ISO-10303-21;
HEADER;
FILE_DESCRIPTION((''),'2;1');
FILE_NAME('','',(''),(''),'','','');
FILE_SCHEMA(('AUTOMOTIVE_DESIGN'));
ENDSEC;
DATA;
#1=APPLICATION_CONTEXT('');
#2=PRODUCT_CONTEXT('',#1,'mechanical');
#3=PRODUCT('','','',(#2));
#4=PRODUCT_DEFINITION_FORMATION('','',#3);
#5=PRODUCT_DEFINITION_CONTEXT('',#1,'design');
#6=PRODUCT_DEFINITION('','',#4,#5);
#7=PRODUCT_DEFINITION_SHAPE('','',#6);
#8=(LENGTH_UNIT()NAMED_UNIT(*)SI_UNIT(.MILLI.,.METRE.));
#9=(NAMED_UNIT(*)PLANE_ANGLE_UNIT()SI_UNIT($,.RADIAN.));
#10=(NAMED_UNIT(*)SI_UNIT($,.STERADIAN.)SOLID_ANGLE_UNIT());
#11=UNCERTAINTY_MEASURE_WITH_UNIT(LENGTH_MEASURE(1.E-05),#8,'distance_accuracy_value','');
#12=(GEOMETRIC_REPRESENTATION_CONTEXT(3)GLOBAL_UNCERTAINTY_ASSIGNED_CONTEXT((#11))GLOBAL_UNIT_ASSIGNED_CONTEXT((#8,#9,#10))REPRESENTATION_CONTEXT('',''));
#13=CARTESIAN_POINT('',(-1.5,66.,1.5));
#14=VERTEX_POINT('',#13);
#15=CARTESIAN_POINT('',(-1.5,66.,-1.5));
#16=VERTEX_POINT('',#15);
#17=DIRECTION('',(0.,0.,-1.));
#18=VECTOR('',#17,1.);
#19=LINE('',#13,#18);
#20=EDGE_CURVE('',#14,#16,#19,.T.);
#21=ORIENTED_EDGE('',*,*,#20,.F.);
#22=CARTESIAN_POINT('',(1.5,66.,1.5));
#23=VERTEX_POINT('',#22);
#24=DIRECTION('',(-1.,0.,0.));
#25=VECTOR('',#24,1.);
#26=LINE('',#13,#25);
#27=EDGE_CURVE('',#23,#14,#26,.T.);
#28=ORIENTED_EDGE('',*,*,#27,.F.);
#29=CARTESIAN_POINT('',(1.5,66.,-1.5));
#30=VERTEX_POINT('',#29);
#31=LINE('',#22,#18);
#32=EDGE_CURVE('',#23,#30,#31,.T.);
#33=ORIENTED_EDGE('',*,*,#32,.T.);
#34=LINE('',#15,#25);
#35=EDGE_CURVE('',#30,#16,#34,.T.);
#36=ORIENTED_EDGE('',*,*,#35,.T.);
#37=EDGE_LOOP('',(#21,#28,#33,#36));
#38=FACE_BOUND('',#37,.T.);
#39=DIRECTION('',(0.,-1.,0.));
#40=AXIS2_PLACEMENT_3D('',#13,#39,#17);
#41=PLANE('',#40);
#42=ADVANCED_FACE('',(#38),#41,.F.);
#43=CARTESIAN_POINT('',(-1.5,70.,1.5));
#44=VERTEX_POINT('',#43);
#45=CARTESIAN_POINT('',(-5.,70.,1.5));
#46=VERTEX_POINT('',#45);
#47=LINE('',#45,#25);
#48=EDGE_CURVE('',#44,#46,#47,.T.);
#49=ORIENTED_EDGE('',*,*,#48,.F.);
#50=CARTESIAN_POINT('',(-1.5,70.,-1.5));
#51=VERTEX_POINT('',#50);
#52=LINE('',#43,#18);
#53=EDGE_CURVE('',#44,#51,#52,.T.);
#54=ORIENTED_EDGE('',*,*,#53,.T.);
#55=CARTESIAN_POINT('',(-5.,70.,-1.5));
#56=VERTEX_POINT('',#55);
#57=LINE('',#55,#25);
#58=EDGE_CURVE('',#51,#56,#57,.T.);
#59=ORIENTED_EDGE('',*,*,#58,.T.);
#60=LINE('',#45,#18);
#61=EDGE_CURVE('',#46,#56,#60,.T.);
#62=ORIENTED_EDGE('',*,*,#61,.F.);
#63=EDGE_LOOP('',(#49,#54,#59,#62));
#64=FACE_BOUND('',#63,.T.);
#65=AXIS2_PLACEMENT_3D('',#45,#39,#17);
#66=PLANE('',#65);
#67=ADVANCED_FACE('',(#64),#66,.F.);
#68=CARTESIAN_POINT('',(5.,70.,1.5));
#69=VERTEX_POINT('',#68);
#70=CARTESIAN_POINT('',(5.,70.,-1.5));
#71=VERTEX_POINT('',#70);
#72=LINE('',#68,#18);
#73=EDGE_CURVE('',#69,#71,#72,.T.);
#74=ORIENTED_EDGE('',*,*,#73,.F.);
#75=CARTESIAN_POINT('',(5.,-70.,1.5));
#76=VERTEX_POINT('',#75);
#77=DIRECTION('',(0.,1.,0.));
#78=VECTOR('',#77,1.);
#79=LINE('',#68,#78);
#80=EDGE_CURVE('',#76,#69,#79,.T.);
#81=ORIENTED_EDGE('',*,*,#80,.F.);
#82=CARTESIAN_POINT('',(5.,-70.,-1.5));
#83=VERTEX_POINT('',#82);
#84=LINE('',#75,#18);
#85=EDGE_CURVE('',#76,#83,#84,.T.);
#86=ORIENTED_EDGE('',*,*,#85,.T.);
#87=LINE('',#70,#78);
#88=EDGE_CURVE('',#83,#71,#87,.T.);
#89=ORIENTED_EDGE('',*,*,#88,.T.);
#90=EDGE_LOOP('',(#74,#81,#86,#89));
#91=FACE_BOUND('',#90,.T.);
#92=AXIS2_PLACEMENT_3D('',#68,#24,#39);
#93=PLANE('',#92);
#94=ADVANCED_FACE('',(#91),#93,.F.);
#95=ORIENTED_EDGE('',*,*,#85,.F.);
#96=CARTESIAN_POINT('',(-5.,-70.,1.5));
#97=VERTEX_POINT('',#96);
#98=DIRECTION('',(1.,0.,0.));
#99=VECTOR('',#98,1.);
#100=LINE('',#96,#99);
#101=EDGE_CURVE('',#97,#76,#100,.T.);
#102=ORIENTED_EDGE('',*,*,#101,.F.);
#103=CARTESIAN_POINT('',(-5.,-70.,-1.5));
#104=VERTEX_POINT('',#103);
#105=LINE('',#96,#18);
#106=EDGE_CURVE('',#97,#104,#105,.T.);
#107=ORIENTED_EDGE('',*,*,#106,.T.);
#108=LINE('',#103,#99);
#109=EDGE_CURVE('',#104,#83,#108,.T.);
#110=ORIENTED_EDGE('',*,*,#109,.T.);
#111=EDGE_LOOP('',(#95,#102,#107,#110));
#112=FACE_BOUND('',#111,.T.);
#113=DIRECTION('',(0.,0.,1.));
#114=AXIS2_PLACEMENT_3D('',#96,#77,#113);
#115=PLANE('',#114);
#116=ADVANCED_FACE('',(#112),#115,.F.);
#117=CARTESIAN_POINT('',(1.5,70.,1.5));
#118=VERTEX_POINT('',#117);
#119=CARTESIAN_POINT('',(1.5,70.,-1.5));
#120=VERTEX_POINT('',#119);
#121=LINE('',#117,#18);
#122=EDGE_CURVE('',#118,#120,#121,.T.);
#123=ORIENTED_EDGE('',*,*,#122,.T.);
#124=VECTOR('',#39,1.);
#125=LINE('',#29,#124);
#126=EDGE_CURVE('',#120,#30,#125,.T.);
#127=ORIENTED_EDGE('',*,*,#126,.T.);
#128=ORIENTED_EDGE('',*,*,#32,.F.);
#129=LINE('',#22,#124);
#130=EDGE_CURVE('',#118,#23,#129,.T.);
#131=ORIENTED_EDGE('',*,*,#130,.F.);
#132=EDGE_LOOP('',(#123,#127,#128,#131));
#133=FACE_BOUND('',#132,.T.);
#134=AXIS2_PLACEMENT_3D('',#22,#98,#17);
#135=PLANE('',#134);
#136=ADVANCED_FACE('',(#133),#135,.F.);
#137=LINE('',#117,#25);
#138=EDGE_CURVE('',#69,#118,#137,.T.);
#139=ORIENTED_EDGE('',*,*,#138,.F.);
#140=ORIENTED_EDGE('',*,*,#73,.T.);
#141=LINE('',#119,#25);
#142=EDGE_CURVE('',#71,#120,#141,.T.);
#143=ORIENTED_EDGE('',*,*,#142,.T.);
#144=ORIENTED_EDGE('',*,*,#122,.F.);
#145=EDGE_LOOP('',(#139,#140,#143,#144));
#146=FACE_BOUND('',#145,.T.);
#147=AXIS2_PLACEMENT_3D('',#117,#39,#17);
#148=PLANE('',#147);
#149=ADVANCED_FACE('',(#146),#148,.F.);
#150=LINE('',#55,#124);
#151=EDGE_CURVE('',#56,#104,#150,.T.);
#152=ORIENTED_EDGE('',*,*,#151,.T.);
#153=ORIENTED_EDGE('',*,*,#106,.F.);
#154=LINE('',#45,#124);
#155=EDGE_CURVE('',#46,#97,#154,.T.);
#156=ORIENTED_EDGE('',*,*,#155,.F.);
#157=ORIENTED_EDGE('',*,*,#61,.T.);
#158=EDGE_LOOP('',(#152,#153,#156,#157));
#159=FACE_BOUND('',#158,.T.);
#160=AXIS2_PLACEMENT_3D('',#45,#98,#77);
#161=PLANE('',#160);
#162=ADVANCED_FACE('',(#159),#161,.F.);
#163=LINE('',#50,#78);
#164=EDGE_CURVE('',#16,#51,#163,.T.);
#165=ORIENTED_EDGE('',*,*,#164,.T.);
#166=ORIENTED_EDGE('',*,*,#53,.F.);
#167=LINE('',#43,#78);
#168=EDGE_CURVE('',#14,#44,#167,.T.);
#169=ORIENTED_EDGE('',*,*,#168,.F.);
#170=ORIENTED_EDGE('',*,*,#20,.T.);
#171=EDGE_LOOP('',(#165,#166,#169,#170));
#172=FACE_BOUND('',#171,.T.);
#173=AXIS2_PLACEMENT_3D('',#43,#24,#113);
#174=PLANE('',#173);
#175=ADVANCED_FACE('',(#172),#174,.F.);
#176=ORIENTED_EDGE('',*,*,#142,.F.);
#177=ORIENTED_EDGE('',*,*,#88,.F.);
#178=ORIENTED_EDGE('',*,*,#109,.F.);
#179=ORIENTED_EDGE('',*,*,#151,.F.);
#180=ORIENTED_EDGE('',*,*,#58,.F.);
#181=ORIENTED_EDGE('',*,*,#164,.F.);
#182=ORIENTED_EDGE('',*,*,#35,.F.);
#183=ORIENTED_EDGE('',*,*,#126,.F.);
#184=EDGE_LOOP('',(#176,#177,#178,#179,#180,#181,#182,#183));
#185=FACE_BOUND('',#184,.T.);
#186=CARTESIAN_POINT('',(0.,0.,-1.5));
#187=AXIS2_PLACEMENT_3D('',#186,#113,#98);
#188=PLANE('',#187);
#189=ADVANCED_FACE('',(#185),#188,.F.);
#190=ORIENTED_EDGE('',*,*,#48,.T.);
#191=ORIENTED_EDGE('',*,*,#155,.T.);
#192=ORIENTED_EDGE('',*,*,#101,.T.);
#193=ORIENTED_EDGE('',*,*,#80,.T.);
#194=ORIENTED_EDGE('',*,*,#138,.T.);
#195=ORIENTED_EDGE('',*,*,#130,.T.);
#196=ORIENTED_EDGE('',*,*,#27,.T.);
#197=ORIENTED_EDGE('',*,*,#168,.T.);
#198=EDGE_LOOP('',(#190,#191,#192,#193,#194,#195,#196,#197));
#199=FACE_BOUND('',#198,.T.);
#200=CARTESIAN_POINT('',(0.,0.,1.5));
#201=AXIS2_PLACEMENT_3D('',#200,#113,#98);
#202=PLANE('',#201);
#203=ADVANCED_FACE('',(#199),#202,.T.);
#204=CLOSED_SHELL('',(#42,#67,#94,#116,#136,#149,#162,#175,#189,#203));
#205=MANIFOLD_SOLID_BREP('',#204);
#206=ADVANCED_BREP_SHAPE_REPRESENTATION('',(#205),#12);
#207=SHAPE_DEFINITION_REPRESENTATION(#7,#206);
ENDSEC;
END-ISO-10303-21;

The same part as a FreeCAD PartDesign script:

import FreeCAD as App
import Part
import Sketcher

V = App.Vector
Q = App.Units.Quantity


def add_polygon(sketch, points):
    """Adds a closed chain of lines whose ends are joined by coincident constraints."""
    first, n = sketch.GeometryCount, len(points)
    for a, b in zip(points, points[1:] + points[:1]):
        sketch.addGeometry(Part.LineSegment(App.Vector(*a, 0), App.Vector(*b, 0)), False)
    for i in range(n):
        sketch.addConstraint(Sketcher.Constraint("Coincident", first + i, 2, first + (i + 1) % n, 1))

doc = App.newDocument("Part")
body = doc.addObject("PartDesign::Body", "Body")

# Sketch on XY plane
sketch1 = body.newObject("Sketcher::SketchObject", "Sketch")
sketch1.AttachmentSupport = (doc.getObject("XY_Plane"), [""])
sketch1.MapMode = "FlatFace"
add_polygon(sketch1, [(5, 70), (1.5, 70), (1.5, 66), (-1.5, 66), (-1.5, 70), (-5, 70), (-5, -70), (5, -70)])  # lines 0-7
sketch1.addConstraint([
    Sketcher.Constraint("Horizontal", 0),
    Sketcher.Constraint("Vertical", 1),
    Sketcher.Constraint("Horizontal", 2),
    Sketcher.Constraint("Vertical", 3),
    Sketcher.Constraint("Horizontal", 4),
    Sketcher.Constraint("Vertical", 5),
    Sketcher.Constraint("Horizontal", 6),
    Sketcher.Constraint("Vertical", 7),
    Sketcher.Constraint("Symmetric", 4, 2, 6, 2, -1, 1),
    Sketcher.Constraint("Symmetric", 0, 2, 3, 2, -2),
    Sketcher.Constraint("DistanceX", 2, 2, 2, 1, Q("3 mm")),
    Sketcher.Constraint("DistanceX", 6, 1, 6, 2, Q("10 mm")),
    Sketcher.Constraint("DistanceY", 1, 2, 1, 1, Q("4 mm")),
    Sketcher.Constraint("DistanceY", 5, 2, 5, 1, Q("140 mm")),
])
pad1 = body.newObject("PartDesign::Pad", "Pad")
pad1.Profile = sketch1
pad1.Length = 3
pad1.Midplane = True

doc.recompute()
